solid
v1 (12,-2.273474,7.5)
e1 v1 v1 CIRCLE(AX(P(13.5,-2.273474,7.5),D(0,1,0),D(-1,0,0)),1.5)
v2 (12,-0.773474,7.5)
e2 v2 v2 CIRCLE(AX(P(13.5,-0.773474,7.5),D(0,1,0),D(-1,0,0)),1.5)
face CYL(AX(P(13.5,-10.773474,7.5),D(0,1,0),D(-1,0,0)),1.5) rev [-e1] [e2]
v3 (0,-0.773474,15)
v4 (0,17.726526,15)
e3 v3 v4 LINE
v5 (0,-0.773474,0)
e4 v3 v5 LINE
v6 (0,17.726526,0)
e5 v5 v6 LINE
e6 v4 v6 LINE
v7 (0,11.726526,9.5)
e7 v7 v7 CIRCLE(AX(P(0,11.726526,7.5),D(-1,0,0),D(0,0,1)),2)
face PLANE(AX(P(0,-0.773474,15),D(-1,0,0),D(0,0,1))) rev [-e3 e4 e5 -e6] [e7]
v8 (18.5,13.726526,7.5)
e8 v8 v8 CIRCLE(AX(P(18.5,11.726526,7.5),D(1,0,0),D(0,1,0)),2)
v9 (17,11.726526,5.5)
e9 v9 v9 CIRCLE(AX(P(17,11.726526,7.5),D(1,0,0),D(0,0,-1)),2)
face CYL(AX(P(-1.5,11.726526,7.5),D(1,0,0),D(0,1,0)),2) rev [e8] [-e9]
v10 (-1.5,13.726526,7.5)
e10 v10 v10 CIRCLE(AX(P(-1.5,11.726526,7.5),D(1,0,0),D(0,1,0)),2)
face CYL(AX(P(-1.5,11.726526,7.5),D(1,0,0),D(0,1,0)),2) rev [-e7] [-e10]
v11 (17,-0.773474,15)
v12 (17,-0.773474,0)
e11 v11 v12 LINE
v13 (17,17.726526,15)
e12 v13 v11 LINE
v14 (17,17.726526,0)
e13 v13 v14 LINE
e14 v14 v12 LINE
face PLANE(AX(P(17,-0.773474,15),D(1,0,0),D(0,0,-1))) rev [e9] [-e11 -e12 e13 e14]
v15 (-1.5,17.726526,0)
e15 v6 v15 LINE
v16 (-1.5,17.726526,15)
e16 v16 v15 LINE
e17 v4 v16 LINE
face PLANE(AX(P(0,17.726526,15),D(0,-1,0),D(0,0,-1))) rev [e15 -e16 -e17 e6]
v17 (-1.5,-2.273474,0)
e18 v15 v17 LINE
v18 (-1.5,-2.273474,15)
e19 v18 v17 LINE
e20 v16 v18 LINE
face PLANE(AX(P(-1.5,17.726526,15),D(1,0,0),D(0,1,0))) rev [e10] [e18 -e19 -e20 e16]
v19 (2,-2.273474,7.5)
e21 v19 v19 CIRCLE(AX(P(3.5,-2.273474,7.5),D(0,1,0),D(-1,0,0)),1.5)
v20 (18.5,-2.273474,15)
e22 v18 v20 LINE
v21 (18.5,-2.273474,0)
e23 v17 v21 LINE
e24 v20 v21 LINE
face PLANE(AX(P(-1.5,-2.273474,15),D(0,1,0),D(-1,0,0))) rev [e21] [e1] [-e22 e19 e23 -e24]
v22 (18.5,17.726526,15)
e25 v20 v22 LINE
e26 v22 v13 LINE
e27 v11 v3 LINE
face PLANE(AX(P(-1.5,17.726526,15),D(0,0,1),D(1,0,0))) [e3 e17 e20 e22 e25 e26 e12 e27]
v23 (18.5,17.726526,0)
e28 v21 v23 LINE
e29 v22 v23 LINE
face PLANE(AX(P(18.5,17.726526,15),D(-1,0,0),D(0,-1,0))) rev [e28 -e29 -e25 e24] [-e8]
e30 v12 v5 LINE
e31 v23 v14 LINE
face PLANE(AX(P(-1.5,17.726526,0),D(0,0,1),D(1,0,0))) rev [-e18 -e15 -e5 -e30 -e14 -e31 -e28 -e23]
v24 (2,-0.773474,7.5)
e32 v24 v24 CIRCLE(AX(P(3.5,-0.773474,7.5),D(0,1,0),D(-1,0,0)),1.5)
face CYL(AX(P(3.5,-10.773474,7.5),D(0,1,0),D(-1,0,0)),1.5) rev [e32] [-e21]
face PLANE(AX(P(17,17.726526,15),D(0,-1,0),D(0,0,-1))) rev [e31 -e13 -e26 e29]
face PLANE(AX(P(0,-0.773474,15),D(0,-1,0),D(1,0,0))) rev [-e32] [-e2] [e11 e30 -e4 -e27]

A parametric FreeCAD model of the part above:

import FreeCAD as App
import Part
import Sketcher
Q = App.Units.Quantity

doc = App.newDocument("Part")
body = doc.addObject("PartDesign::Body", "Body")

sketch1 = doc.addObject("Sketcher::SketchObject", "Sketch")
body.addObject(sketch1)
sketch1.AttachmentSupport = (doc.XY_Plane, [""])
sketch1.MapMode = "FlatFace"
sketch1.addGeometry([
    Part.LineSegment(App.Vector(-1.5, 17.7, 0), App.Vector(-1.5, -2.3, 0)),
    Part.LineSegment(App.Vector(-1.5, -2.3, 0), App.Vector(18.5, -2.3, 0)),
    Part.LineSegment(App.Vector(18.5, -2.3, 0), App.Vector(18.5, 17.7, 0)),
    Part.LineSegment(App.Vector(18.5, 17.7, 0), App.Vector(17, 17.7, 0)),
    Part.LineSegment(App.Vector(17, 17.7, 0), App.Vector(17, -0.8, 0)),
    Part.LineSegment(App.Vector(17, -0.8, 0), App.Vector(0, -0.8, 0)),
    Part.LineSegment(App.Vector(0, -0.8, 0), App.Vector(0, 17.7, 0)),
    Part.LineSegment(App.Vector(0, 17.7, 0), App.Vector(-1.5, 17.7, 0)),
], False)
sketch1.addConstraint([
    Sketcher.Constraint("Coincident", 0, 2, 1, 1),
    Sketcher.Constraint("Coincident", 1, 2, 2, 1),
    Sketcher.Constraint("Coincident", 2, 2, 3, 1),
    Sketcher.Constraint("Coincident", 3, 2, 4, 1),
    Sketcher.Constraint("Coincident", 4, 2, 5, 1),
    Sketcher.Constraint("Coincident", 5, 2, 6, 1),
    Sketcher.Constraint("Coincident", 6, 2, 7, 1),
    Sketcher.Constraint("Coincident", 7, 2, 0, 1),
    Sketcher.Constraint("Vertical", 0),
    Sketcher.Constraint("Horizontal", 1),
    Sketcher.Constraint("Vertical", 2),
    Sketcher.Constraint("Horizontal", 3),
    Sketcher.Constraint("Vertical", 4),
    Sketcher.Constraint("Horizontal", 5),
    Sketcher.Constraint("Vertical", 6),
    Sketcher.Constraint("Horizontal", 7),
    Sketcher.Constraint("PointOnObject", 5, 2, -2),
    Sketcher.Constraint("Horizontal", 3, 2, 6, 2),
    Sketcher.Constraint("Equal", 3, 7),
    Sketcher.Constraint("Equal", 1, 0),
    Sketcher.Constraint("DistanceX", 1, 1, 1, 2, Q("20 mm")),
    Sketcher.Constraint("DistanceX", 5, 2, 5, 1, Q("17 mm")),
    Sketcher.Constraint("DistanceY", 4, 2, 4, 1, Q("18.5 mm")),
    Sketcher.Constraint("DistanceY", 0, 2, -1, 1, Q("2.273474 mm")),
])
pad1 = doc.addObject("PartDesign::Pad", "Pad")
body.addObject(pad1)
pad1.Profile = sketch1
pad1.Length = 15

sketch2 = doc.addObject("Sketcher::SketchObject", "Sketch001")
body.addObject(sketch2)
sketch2.AttachmentSupport = (doc.YZ_Plane, [""])
sketch2.MapMode = "FlatFace"
sketch2.AttachmentOffset = App.Placement(App.Vector(0, 0, 18.5), App.Rotation())
sketch2.addGeometry(Part.Circle(App.Vector(11.7, 7.5, 0), App.Vector(0, 0, 1), 2), False)
sketch2.addConstraint([
    Sketcher.Constraint("Diameter", 0, Q("4 mm")),
    Sketcher.Constraint("DistanceY", -1, 1, 0, 3, Q("7.5 mm")),
    Sketcher.Constraint("DistanceX", -1, 1, 0, 3, Q("11.726526 mm")),
])
pocket1 = doc.addObject("PartDesign::Pocket", "Pocket")
body.addObject(pocket1)
pocket1.Profile = sketch2
pocket1.Type = "ThroughAll"

sketch3 = doc.addObject("Sketcher::SketchObject", "Sketch002")
body.addObject(sketch3)
sketch3.AttachmentSupport = (doc.XZ_Plane, [""])
sketch3.MapMode = "FlatFace"
sketch3.AttachmentOffset = App.Placement(App.Vector(0, 0, 0.773474), App.Rotation())
sketch3.addGeometry([
    Part.Circle(App.Vector(3.5, 7.5, 0), App.Vector(0, 0, 1), 1.5),
    Part.Circle(App.Vector(13.5, 7.5, 0), App.Vector(0, 0, 1), 1.5),
], False)
sketch3.addConstraint([
    Sketcher.Constraint("Equal", 0, 1),
    Sketcher.Constraint("Horizontal", 0, 3, 1, 3),
    Sketcher.Constraint("Diameter", 0, Q("3 mm")),
    Sketcher.Constraint("DistanceX", 0, 3, 1, 3, Q("10 mm")),
    Sketcher.Constraint("DistanceX", -1, 1, 0, 3, Q("3.5 mm")),
    Sketcher.Constraint("DistanceY", -1, 1, 0, 3, Q("7.5 mm")),
])
pocket2 = doc.addObject("PartDesign::Pocket", "Pocket001")
body.addObject(pocket2)
pocket2.Profile = sketch3
pocket2.Length = 10
pocket2.Reversed = True

doc.recompute()
